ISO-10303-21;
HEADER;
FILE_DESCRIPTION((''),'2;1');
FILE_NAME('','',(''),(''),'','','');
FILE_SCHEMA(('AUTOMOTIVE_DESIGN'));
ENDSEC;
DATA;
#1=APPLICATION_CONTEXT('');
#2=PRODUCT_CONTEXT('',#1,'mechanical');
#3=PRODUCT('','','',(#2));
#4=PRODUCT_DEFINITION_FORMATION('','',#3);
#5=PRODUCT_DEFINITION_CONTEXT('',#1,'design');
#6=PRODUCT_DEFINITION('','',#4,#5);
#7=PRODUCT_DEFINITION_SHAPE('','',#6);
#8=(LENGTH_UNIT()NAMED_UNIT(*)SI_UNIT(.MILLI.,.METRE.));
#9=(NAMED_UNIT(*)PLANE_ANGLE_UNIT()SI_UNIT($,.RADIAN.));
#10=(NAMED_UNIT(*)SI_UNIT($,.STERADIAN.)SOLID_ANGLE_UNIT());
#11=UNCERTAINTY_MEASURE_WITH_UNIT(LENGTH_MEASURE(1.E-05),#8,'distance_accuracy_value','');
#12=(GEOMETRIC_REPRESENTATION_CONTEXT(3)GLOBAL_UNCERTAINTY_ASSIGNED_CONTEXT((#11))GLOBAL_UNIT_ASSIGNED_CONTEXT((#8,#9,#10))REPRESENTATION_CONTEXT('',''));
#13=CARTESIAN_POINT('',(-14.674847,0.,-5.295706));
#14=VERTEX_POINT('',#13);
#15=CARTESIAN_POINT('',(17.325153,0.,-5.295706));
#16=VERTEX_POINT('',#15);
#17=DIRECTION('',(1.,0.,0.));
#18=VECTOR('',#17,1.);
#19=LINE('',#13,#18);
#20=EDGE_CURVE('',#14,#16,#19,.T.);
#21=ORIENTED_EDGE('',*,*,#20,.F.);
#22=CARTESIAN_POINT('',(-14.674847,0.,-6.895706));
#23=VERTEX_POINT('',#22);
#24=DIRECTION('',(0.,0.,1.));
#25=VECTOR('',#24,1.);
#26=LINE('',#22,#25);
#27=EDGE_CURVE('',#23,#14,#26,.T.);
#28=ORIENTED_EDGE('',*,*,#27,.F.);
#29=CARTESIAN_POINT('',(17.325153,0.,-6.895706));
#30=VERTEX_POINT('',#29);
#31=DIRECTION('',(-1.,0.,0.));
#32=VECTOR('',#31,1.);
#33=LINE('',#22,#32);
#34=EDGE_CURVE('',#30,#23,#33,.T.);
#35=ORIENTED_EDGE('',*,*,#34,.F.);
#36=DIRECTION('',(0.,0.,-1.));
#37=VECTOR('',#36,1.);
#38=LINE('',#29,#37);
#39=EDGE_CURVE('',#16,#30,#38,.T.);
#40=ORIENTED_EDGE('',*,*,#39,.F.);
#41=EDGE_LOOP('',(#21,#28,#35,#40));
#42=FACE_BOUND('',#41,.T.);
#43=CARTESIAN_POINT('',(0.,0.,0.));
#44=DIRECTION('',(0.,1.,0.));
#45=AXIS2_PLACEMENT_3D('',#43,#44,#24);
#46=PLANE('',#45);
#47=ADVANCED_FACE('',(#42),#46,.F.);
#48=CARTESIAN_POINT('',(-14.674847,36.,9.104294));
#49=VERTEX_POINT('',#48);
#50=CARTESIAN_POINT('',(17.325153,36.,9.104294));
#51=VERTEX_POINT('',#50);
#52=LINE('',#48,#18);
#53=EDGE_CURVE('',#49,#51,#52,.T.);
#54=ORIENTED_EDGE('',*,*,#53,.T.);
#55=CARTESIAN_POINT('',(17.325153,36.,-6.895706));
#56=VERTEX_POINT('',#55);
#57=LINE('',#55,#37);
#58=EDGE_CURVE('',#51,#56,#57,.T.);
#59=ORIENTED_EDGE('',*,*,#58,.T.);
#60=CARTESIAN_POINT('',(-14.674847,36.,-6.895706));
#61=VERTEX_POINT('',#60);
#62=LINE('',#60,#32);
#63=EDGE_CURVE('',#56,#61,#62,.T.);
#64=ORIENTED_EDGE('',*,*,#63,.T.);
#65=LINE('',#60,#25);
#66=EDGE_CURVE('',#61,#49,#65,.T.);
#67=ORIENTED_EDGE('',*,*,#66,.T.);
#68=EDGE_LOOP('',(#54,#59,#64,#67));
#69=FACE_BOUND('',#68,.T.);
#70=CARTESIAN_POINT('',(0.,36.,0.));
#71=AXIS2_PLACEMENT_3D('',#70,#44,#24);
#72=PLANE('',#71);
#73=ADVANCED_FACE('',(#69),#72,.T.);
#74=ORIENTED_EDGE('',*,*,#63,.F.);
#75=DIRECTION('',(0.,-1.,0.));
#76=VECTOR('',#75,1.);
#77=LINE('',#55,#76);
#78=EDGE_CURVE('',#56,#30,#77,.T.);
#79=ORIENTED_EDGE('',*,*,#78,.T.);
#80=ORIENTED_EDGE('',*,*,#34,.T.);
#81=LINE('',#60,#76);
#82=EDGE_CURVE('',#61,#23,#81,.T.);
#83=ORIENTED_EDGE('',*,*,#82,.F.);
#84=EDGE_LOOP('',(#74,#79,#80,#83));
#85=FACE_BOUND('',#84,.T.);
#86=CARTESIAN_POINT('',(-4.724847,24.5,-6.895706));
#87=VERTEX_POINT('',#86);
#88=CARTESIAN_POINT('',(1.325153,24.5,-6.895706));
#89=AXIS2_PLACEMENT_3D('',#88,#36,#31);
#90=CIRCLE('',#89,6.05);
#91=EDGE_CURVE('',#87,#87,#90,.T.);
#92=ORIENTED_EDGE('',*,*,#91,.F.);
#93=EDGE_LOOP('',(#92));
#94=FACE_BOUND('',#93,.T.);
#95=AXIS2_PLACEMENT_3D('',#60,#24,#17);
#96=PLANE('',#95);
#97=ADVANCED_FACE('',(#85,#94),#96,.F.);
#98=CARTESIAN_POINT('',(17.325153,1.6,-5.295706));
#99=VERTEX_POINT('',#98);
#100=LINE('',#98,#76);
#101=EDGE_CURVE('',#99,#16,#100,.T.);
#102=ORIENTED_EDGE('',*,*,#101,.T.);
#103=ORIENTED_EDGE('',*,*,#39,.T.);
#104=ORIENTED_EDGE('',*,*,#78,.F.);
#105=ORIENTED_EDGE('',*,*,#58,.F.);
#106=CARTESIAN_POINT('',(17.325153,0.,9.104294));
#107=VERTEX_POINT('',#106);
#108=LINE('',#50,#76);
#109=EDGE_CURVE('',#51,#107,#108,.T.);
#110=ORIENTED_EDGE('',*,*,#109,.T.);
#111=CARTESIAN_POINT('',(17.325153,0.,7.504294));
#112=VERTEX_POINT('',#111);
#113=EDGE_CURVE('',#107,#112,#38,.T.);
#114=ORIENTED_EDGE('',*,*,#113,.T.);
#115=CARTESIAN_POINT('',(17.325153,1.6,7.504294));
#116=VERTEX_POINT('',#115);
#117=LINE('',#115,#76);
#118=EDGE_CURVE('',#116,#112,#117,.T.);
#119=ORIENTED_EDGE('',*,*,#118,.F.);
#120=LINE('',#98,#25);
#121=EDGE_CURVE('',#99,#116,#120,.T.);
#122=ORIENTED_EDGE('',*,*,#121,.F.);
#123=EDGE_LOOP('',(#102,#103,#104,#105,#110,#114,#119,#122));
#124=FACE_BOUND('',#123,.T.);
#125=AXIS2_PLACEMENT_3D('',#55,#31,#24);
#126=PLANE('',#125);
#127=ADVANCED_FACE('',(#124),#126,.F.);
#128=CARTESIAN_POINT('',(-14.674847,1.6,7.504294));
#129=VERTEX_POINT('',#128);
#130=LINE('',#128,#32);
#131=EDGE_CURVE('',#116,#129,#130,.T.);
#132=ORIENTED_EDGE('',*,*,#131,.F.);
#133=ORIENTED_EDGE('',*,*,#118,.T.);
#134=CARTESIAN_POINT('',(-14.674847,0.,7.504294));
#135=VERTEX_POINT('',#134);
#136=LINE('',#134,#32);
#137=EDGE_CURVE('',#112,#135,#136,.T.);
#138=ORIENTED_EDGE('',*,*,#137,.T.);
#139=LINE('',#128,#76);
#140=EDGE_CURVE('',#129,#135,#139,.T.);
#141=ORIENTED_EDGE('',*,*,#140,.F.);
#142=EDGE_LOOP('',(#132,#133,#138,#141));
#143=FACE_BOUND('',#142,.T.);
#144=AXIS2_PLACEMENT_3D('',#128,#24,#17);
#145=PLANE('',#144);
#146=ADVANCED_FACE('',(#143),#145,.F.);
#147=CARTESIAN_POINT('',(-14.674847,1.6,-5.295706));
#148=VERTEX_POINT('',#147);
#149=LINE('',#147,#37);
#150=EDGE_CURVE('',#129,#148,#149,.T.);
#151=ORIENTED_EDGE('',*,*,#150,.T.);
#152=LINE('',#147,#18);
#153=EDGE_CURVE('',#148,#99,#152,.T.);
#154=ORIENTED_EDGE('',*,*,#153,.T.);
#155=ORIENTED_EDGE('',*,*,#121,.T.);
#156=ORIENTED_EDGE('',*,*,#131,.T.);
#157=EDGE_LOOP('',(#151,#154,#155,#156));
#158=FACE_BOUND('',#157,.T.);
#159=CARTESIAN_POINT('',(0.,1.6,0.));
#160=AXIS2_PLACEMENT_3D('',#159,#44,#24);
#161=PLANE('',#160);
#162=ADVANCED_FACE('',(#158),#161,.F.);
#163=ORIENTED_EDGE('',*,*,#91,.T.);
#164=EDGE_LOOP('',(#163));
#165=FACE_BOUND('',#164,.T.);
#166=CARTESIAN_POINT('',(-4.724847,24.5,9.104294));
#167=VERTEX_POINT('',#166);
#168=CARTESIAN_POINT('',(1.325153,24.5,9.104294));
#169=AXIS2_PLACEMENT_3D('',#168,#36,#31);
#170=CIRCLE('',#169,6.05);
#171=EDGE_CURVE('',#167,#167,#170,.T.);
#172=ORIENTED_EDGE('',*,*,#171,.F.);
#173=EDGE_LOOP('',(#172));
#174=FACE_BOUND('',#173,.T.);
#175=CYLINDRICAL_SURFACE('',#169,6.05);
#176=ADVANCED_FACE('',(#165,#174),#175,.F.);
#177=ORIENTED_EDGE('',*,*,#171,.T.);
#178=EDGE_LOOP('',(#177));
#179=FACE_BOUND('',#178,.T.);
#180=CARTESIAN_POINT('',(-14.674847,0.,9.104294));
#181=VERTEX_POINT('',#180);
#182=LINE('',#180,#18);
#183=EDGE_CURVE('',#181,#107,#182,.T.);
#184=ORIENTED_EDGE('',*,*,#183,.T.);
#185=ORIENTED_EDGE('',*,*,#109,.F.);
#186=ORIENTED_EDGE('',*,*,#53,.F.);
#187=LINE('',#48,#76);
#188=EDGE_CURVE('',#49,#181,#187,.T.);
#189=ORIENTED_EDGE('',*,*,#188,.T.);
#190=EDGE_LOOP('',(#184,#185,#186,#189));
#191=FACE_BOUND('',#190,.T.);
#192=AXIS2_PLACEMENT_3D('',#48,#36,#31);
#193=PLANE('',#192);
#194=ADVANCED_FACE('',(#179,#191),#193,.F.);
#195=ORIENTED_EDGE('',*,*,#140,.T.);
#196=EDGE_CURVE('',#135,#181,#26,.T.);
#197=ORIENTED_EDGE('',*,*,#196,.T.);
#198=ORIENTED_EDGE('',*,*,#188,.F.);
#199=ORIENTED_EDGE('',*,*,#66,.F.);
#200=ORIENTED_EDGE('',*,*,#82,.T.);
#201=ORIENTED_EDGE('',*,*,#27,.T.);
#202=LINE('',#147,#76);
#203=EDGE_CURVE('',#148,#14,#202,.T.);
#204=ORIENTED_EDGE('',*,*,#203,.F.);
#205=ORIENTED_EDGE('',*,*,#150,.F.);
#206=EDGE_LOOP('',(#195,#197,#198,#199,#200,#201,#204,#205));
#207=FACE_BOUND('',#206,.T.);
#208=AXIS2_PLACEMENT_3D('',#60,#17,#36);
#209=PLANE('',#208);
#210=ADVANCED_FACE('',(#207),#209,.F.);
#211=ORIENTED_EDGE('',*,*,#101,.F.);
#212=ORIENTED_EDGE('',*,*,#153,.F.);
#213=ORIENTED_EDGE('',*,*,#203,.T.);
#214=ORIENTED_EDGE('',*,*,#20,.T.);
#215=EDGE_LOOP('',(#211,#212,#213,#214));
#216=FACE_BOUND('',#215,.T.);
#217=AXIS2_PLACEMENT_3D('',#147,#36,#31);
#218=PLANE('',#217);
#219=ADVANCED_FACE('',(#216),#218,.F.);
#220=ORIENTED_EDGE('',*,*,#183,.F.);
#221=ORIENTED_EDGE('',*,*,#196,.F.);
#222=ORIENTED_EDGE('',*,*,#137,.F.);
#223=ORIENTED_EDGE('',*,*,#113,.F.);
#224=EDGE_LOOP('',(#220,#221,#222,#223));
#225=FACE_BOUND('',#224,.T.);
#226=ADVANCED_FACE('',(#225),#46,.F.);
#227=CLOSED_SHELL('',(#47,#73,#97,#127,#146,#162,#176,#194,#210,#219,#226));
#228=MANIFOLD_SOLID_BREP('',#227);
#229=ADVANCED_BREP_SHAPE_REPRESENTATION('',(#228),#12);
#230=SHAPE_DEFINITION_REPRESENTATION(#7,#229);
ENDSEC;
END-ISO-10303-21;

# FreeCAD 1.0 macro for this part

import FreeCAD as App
import Part
import Sketcher
from FreeCAD import Vector

doc = App.newDocument("Part")
body = doc.addObject("PartDesign::Body", "Body")

# Sketch on XZ plane
sketch1 = doc.addObject("Sketcher::SketchObject", "Sketch")
body.addObject(sketch1)
sketch1.AttachmentSupport = (doc.XZ_Plane, [""])
sketch1.MapMode = "FlatFace"
sketch1.addGeometry(Part.LineSegment(Vector(-15, -7, 0), Vector(-15, 9, 0)), False)
sketch1.addGeometry(Part.LineSegment(Vector(-15, 9, 0), Vector(17, 9, 0)), False)
sketch1.addGeometry(Part.LineSegment(Vector(17, 9, 0), Vector(17, -7, 0)), False)
sketch1.addGeometry(Part.LineSegment(Vector(17, -7, 0), Vector(-15, -7, 0)), False)
sketch1.addConstraint(Sketcher.Constraint("Coincident", 0, 2, 1, 1))
sketch1.addConstraint(Sketcher.Constraint("Coincident", 1, 2, 2, 1))
sketch1.addConstraint(Sketcher.Constraint("Coincident", 2, 2, 3, 1))
sketch1.addConstraint(Sketcher.Constraint("Coincident", 3, 2, 0, 1))
sketch1.addConstraint(Sketcher.Constraint("Vertical", 0))
sketch1.addConstraint(Sketcher.Constraint("Horizontal", 1))
sketch1.addConstraint(Sketcher.Constraint("Vertical", 2))
sketch1.addConstraint(Sketcher.Constraint("Horizontal", 3))
sketch1.addConstraint(Sketcher.Constraint("DistanceX", 1, 1, 1, 2, 32.0))
sketch1.addConstraint(Sketcher.Constraint("DistanceY", 0, 1, 0, 2, 16.0))
sketch1.addConstraint(Sketcher.Constraint("DistanceX", 0, 2, -1, 1, 14.674847))
sketch1.addConstraint(Sketcher.Constraint("DistanceY", -1, 1, 0, 2, 9.104294))
pad1 = doc.addObject("PartDesign::Pad", "Pad")
body.addObject(pad1)
pad1.Profile = sketch1
pad1.Length = 36
pad1.Reversed = True

# Sketch on XZ plane
sketch2 = doc.addObject("Sketcher::SketchObject", "Sketch001")
body.addObject(sketch2)
sketch2.AttachmentSupport = (doc.XZ_Plane, [""])
sketch2.MapMode = "FlatFace"
sketch2.addGeometry(Part.LineSegment(Vector(17, -5, 0), Vector(17, 8, 0)), False)
sketch2.addGeometry(Part.LineSegment(Vector(17, 8, 0), Vector(-15, 8, 0)), False)
sketch2.addGeometry(Part.LineSegment(Vector(-15, 8, 0), Vector(-15, -5, 0)), False)
sketch2.addGeometry(Part.LineSegment(Vector(-15, -5, 0), Vector(17, -5, 0)), False)
sketch2.addConstraint(Sketcher.Constraint("Coincident", 0, 2, 1, 1))
sketch2.addConstraint(Sketcher.Constraint("Coincident", 1, 2, 2, 1))
sketch2.addConstraint(Sketcher.Constraint("Coincident", 2, 2, 3, 1))
sketch2.addConstraint(Sketcher.Constraint("Coincident", 3, 2, 0, 1))
sketch2.addConstraint(Sketcher.Constraint("Vertical", 0))
sketch2.addConstraint(Sketcher.Constraint("Horizontal", 1))
sketch2.addConstraint(Sketcher.Constraint("Vertical", 2))
sketch2.addConstraint(Sketcher.Constraint("Horizontal", 3))
sketch2.addConstraint(Sketcher.Constraint("DistanceX", 1, 2, 1, 1, 32.0))
sketch2.addConstraint(Sketcher.Constraint("DistanceY", 0, 1, 0, 2, 12.8))
sketch2.addConstraint(Sketcher.Constraint("DistanceX", -1, 1, 0, 2, 17.325153))
sketch2.addConstraint(Sketcher.Constraint("DistanceY", -1, 1, 0, 2, 7.504294))
pocket1 = doc.addObject("PartDesign::Pocket", "Pocket")
body.addObject(pocket1)
pocket1.Profile = sketch2
pocket1.Length = 1.6

# Sketch on XY plane
sketch3 = doc.addObject("Sketcher::SketchObject", "Sketch002")
body.addObject(sketch3)
sketch3.AttachmentSupport = (doc.XY_Plane, [""])
sketch3.MapMode = "FlatFace"
sketch3.AttachmentOffset = App.Placement(Vector(0, 0, -6.895706), App.Rotation())
sketch3.addGeometry(Part.Circle(Vector(1, 24, 0), Vector(0, 0, 1), 6), False)
sketch3.addConstraint(Sketcher.Constraint("Diameter", 0, 12.1))
sketch3.addConstraint(Sketcher.Constraint("DistanceY", -1, 1, 0, 3, 24.5))
sketch3.addConstraint(Sketcher.Constraint("DistanceX", -1, 1, 0, 3, 1.325153))
pocket2 = doc.addObject("PartDesign::Pocket", "Pocket001")
body.addObject(pocket2)
pocket2.Profile = sketch3
pocket2.Type = "ThroughAll"
pocket2.Reversed = True

doc.recompute()
